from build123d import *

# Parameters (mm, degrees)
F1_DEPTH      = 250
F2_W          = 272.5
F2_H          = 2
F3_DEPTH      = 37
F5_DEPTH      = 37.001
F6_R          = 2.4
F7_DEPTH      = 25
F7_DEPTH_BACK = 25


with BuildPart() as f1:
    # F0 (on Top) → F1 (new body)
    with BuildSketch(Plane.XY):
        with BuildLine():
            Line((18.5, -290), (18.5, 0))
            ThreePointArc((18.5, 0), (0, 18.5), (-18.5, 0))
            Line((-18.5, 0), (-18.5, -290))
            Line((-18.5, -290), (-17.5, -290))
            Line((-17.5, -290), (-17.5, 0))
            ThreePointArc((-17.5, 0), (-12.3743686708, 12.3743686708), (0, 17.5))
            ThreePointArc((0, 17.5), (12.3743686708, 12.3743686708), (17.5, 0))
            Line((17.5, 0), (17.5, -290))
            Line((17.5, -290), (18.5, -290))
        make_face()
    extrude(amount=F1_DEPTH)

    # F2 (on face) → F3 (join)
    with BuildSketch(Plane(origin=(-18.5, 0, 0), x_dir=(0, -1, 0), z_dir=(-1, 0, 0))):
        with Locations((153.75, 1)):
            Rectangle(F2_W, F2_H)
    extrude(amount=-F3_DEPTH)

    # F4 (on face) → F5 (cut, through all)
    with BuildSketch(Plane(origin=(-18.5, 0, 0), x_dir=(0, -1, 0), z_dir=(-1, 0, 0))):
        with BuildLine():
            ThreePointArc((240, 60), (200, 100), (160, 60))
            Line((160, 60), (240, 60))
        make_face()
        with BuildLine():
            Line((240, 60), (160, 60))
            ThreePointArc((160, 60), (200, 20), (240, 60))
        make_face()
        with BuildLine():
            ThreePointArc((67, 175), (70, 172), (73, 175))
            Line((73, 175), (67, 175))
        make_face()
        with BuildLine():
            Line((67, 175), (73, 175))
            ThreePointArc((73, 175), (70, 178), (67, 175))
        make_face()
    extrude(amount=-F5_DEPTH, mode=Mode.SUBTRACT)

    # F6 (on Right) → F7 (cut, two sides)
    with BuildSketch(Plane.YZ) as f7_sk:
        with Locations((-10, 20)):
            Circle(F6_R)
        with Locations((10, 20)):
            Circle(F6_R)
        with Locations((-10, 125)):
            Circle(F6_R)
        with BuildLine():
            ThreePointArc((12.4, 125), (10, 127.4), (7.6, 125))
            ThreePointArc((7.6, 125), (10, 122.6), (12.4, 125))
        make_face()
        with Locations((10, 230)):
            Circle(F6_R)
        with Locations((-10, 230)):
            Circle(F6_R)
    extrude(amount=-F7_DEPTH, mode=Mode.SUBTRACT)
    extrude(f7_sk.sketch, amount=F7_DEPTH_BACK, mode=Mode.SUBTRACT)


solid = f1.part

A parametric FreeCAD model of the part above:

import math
import FreeCAD as App
import Part
import Sketcher

V = App.Vector


def add_polygon(sketch, points):
    """Adds a closed chain of lines whose ends are joined by coincident constraints."""
    first, n = sketch.GeometryCount, len(points)
    for a, b in zip(points, points[1:] + points[:1]):
        sketch.addGeometry(Part.LineSegment(App.Vector(*a, 0), App.Vector(*b, 0)), False)
    for i in range(n):
        sketch.addConstraint(Sketcher.Constraint("Coincident", first + i, 2, first + (i + 1) % n, 1))

doc = App.newDocument("Part")
body = doc.addObject("PartDesign::Body", "Body")

# Sketch on XY plane
sketch1 = body.newObject("Sketcher::SketchObject", "Sketch")
sketch1.AttachmentSupport = (doc.getObject("XY_Plane"), [""])
sketch1.MapMode = "FlatFace"
sketch1.addGeometry([
    Part.LineSegment(V(18.5, -290, 0), V(18.5, 0, 0)),  # 0
    Part.ArcOfCircle(Part.Circle(V(0, 0, 0), V(0, 0, 1), 18.5), math.radians(0), math.radians(180)),  # 1
    Part.LineSegment(V(-18.5, 0, 0), V(-18.5, -290, 0)),  # 2
    Part.LineSegment(V(-18.5, -290, 0), V(-17.5, -290, 0)),  # 3
    Part.LineSegment(V(-17.5, -290, 0), V(-17.5, 0, 0)),  # 4
    Part.ArcOfCircle(Part.Circle(V(0, 0, 0), V(0, 0, 1), 17.5), math.radians(90), math.radians(180)),  # 5
    Part.ArcOfCircle(Part.Circle(V(0, 0, 0), V(0, 0, 1), 17.5), math.radians(0), math.radians(90)),  # 6
    Part.LineSegment(V(17.5, 0, 0), V(17.5, -290, 0)),  # 7
    Part.LineSegment(V(17.5, -290, 0), V(18.5, -290, 0)),  # 8
], False)
sketch1.addConstraint([
    Sketcher.Constraint("Tangent", 0, 2, 1, 1),
    Sketcher.Constraint("Tangent", 1, 2, 2, 1),
    Sketcher.Constraint("Coincident", 2, 2, 3, 1),
    Sketcher.Constraint("Coincident", 3, 2, 4, 1),
    Sketcher.Constraint("Tangent", 4, 2, 5, 2),
    Sketcher.Constraint("Tangent", 5, 1, 6, 2),
    Sketcher.Constraint("Tangent", 6, 1, 7, 1),
    Sketcher.Constraint("Coincident", 7, 2, 8, 1),
    Sketcher.Constraint("Coincident", 8, 2, 0, 1),
    Sketcher.Constraint("Vertical", 0),
    Sketcher.Constraint("Vertical", 2),
    Sketcher.Constraint("Horizontal", 3),
    Sketcher.Constraint("Vertical", 4),
    Sketcher.Constraint("Vertical", 7),
    Sketcher.Constraint("Horizontal", 8),
    Sketcher.Constraint("Coincident", 1, 3, -1, 1),
    Sketcher.Constraint("Coincident", 5, 3, -1, 1),
    Sketcher.Constraint("Equal", 5, 6),
    Sketcher.Constraint("PointOnObject", 5, 1, -2),
    Sketcher.Constraint("Horizontal", 3, 2, 7, 2),
    Sketcher.Constraint("Radius", 1, 18.5),
    Sketcher.Constraint("Radius", 5, 17.5),
    Sketcher.Constraint("DistanceY", 0, 1, 0, 2, 290.0),
])
pad1 = body.newObject("PartDesign::Pad", "Pad")
pad1.Profile = sketch1
pad1.Length = 250

# Sketch on YZ plane
sketch2 = body.newObject("Sketcher::SketchObject", "Sketch001")
sketch2.AttachmentSupport = (doc.getObject("YZ_Plane"), [""])
sketch2.MapMode = "FlatFace"
sketch2.AttachmentOffset = App.Placement(V(0, 0, -18.5), App.Rotation())
add_polygon(sketch2, [(-17.5, 2), (-17.5, 0), (-290, 0), (-290, 2)])  # lines 0-3
sketch2.addConstraint([
    Sketcher.Constraint("Vertical", 0),
    Sketcher.Constraint("Horizontal", 1),
    Sketcher.Constraint("Vertical", 2),
    Sketcher.Constraint("Horizontal", 3),
    Sketcher.Constraint("PointOnObject", 0, 2, -1),
    Sketcher.Constraint("DistanceY", 0, 2, 0, 1, 2.0),
    Sketcher.Constraint("DistanceX", 1, 2, 1, 1, 272.5),
    Sketcher.Constraint("DistanceX", 1, 2, -1, 1, 290.0),
])
pad2 = body.newObject("PartDesign::Pad", "Pad001")
pad2.Profile = sketch2
pad2.Length = 37

# Sketch on YZ plane
sketch3 = body.newObject("Sketcher::SketchObject", "Sketch002")
sketch3.AttachmentSupport = (doc.getObject("YZ_Plane"), [""])
sketch3.MapMode = "FlatFace"
sketch3.AttachmentOffset = App.Placement(V(0, 0, -18.5), App.Rotation())
sketch3.addGeometry([
    Part.Circle(V(-200, 60, 0), V(0, 0, 1), 40),
    Part.Circle(V(-70, 175, 0), V(0, 0, 1), 3),
], False)
sketch3.addConstraint([
    Sketcher.Constraint("Diameter", 0, 80.0),
    Sketcher.Constraint("Diameter", 1, 6.0),
    Sketcher.Constraint("DistanceX", 0, 3, -1, 1, 200.0),
    Sketcher.Constraint("DistanceY", -1, 1, 0, 3, 60.0),
    Sketcher.Constraint("DistanceX", 1, 3, -1, 1, 70.0),
    Sketcher.Constraint("DistanceY", -1, 1, 1, 3, 175.0),
])
pocket1 = body.newObject("PartDesign::Pocket", "Pocket")
pocket1.Profile = sketch3
pocket1.Type = "ThroughAll"
pocket1.Reversed = True

# Sketch on YZ plane
sketch4 = body.newObject("Sketcher::SketchObject", "Sketch003")
sketch4.AttachmentSupport = (doc.getObject("YZ_Plane"), [""])
sketch4.MapMode = "FlatFace"
sketch4.addGeometry([
    Part.Circle(V(-10, 20, 0), V(0, 0, 1), 2.4),  # 0
    Part.Circle(V(10, 20, 0), V(0, 0, 1), 2.4),  # 1
    Part.Circle(V(-10, 125, 0), V(0, 0, 1), 2.4),  # 2
    Part.Circle(V(10, 125, 0), V(0, 0, 1), 2.4),  # 3
    Part.Circle(V(10, 230, 0), V(0, 0, 1), 2.4),  # 4
    Part.Circle(V(-10, 230, 0), V(0, 0, 1), 2.4),  # 5
], False)
sketch4.addConstraint([
    Sketcher.Constraint("Equal", 0, 1),
    Sketcher.Constraint("Equal", 1, 2),
    Sketcher.Constraint("Equal", 2, 3),
    Sketcher.Constraint("Equal", 3, 4),
    Sketcher.Constraint("Equal", 4, 5),
    Sketcher.Constraint("Symmetric", 0, 3, 1, 3, -2),
    Sketcher.Constraint("Symmetric", 2, 3, 3, 3, -2),
    Sketcher.Constraint("Symmetric", 4, 3, 5, 3, -2),
    Sketcher.Constraint("Vertical", 0, 3, 2, 3),
    Sketcher.Constraint("Vertical", 3, 3, 4, 3),
    Sketcher.Constraint("Diameter", 0, 4.8),
    Sketcher.Constraint("DistanceX", 0, 3, -1, 1, 10.0),
    Sketcher.Constraint("DistanceY", -1, 1, 0, 3, 20.0),
    Sketcher.Constraint("DistanceY", -1, 1, 2, 3, 125.0),
    Sketcher.Constraint("DistanceY", -1, 1, 4, 3, 230.0),
])
pocket2 = body.newObject("PartDesign::Pocket", "Pocket001")
pocket2.Profile = sketch4
pocket2.Type = "ThroughAll"
pocket2.Midplane = True

doc.recompute()
